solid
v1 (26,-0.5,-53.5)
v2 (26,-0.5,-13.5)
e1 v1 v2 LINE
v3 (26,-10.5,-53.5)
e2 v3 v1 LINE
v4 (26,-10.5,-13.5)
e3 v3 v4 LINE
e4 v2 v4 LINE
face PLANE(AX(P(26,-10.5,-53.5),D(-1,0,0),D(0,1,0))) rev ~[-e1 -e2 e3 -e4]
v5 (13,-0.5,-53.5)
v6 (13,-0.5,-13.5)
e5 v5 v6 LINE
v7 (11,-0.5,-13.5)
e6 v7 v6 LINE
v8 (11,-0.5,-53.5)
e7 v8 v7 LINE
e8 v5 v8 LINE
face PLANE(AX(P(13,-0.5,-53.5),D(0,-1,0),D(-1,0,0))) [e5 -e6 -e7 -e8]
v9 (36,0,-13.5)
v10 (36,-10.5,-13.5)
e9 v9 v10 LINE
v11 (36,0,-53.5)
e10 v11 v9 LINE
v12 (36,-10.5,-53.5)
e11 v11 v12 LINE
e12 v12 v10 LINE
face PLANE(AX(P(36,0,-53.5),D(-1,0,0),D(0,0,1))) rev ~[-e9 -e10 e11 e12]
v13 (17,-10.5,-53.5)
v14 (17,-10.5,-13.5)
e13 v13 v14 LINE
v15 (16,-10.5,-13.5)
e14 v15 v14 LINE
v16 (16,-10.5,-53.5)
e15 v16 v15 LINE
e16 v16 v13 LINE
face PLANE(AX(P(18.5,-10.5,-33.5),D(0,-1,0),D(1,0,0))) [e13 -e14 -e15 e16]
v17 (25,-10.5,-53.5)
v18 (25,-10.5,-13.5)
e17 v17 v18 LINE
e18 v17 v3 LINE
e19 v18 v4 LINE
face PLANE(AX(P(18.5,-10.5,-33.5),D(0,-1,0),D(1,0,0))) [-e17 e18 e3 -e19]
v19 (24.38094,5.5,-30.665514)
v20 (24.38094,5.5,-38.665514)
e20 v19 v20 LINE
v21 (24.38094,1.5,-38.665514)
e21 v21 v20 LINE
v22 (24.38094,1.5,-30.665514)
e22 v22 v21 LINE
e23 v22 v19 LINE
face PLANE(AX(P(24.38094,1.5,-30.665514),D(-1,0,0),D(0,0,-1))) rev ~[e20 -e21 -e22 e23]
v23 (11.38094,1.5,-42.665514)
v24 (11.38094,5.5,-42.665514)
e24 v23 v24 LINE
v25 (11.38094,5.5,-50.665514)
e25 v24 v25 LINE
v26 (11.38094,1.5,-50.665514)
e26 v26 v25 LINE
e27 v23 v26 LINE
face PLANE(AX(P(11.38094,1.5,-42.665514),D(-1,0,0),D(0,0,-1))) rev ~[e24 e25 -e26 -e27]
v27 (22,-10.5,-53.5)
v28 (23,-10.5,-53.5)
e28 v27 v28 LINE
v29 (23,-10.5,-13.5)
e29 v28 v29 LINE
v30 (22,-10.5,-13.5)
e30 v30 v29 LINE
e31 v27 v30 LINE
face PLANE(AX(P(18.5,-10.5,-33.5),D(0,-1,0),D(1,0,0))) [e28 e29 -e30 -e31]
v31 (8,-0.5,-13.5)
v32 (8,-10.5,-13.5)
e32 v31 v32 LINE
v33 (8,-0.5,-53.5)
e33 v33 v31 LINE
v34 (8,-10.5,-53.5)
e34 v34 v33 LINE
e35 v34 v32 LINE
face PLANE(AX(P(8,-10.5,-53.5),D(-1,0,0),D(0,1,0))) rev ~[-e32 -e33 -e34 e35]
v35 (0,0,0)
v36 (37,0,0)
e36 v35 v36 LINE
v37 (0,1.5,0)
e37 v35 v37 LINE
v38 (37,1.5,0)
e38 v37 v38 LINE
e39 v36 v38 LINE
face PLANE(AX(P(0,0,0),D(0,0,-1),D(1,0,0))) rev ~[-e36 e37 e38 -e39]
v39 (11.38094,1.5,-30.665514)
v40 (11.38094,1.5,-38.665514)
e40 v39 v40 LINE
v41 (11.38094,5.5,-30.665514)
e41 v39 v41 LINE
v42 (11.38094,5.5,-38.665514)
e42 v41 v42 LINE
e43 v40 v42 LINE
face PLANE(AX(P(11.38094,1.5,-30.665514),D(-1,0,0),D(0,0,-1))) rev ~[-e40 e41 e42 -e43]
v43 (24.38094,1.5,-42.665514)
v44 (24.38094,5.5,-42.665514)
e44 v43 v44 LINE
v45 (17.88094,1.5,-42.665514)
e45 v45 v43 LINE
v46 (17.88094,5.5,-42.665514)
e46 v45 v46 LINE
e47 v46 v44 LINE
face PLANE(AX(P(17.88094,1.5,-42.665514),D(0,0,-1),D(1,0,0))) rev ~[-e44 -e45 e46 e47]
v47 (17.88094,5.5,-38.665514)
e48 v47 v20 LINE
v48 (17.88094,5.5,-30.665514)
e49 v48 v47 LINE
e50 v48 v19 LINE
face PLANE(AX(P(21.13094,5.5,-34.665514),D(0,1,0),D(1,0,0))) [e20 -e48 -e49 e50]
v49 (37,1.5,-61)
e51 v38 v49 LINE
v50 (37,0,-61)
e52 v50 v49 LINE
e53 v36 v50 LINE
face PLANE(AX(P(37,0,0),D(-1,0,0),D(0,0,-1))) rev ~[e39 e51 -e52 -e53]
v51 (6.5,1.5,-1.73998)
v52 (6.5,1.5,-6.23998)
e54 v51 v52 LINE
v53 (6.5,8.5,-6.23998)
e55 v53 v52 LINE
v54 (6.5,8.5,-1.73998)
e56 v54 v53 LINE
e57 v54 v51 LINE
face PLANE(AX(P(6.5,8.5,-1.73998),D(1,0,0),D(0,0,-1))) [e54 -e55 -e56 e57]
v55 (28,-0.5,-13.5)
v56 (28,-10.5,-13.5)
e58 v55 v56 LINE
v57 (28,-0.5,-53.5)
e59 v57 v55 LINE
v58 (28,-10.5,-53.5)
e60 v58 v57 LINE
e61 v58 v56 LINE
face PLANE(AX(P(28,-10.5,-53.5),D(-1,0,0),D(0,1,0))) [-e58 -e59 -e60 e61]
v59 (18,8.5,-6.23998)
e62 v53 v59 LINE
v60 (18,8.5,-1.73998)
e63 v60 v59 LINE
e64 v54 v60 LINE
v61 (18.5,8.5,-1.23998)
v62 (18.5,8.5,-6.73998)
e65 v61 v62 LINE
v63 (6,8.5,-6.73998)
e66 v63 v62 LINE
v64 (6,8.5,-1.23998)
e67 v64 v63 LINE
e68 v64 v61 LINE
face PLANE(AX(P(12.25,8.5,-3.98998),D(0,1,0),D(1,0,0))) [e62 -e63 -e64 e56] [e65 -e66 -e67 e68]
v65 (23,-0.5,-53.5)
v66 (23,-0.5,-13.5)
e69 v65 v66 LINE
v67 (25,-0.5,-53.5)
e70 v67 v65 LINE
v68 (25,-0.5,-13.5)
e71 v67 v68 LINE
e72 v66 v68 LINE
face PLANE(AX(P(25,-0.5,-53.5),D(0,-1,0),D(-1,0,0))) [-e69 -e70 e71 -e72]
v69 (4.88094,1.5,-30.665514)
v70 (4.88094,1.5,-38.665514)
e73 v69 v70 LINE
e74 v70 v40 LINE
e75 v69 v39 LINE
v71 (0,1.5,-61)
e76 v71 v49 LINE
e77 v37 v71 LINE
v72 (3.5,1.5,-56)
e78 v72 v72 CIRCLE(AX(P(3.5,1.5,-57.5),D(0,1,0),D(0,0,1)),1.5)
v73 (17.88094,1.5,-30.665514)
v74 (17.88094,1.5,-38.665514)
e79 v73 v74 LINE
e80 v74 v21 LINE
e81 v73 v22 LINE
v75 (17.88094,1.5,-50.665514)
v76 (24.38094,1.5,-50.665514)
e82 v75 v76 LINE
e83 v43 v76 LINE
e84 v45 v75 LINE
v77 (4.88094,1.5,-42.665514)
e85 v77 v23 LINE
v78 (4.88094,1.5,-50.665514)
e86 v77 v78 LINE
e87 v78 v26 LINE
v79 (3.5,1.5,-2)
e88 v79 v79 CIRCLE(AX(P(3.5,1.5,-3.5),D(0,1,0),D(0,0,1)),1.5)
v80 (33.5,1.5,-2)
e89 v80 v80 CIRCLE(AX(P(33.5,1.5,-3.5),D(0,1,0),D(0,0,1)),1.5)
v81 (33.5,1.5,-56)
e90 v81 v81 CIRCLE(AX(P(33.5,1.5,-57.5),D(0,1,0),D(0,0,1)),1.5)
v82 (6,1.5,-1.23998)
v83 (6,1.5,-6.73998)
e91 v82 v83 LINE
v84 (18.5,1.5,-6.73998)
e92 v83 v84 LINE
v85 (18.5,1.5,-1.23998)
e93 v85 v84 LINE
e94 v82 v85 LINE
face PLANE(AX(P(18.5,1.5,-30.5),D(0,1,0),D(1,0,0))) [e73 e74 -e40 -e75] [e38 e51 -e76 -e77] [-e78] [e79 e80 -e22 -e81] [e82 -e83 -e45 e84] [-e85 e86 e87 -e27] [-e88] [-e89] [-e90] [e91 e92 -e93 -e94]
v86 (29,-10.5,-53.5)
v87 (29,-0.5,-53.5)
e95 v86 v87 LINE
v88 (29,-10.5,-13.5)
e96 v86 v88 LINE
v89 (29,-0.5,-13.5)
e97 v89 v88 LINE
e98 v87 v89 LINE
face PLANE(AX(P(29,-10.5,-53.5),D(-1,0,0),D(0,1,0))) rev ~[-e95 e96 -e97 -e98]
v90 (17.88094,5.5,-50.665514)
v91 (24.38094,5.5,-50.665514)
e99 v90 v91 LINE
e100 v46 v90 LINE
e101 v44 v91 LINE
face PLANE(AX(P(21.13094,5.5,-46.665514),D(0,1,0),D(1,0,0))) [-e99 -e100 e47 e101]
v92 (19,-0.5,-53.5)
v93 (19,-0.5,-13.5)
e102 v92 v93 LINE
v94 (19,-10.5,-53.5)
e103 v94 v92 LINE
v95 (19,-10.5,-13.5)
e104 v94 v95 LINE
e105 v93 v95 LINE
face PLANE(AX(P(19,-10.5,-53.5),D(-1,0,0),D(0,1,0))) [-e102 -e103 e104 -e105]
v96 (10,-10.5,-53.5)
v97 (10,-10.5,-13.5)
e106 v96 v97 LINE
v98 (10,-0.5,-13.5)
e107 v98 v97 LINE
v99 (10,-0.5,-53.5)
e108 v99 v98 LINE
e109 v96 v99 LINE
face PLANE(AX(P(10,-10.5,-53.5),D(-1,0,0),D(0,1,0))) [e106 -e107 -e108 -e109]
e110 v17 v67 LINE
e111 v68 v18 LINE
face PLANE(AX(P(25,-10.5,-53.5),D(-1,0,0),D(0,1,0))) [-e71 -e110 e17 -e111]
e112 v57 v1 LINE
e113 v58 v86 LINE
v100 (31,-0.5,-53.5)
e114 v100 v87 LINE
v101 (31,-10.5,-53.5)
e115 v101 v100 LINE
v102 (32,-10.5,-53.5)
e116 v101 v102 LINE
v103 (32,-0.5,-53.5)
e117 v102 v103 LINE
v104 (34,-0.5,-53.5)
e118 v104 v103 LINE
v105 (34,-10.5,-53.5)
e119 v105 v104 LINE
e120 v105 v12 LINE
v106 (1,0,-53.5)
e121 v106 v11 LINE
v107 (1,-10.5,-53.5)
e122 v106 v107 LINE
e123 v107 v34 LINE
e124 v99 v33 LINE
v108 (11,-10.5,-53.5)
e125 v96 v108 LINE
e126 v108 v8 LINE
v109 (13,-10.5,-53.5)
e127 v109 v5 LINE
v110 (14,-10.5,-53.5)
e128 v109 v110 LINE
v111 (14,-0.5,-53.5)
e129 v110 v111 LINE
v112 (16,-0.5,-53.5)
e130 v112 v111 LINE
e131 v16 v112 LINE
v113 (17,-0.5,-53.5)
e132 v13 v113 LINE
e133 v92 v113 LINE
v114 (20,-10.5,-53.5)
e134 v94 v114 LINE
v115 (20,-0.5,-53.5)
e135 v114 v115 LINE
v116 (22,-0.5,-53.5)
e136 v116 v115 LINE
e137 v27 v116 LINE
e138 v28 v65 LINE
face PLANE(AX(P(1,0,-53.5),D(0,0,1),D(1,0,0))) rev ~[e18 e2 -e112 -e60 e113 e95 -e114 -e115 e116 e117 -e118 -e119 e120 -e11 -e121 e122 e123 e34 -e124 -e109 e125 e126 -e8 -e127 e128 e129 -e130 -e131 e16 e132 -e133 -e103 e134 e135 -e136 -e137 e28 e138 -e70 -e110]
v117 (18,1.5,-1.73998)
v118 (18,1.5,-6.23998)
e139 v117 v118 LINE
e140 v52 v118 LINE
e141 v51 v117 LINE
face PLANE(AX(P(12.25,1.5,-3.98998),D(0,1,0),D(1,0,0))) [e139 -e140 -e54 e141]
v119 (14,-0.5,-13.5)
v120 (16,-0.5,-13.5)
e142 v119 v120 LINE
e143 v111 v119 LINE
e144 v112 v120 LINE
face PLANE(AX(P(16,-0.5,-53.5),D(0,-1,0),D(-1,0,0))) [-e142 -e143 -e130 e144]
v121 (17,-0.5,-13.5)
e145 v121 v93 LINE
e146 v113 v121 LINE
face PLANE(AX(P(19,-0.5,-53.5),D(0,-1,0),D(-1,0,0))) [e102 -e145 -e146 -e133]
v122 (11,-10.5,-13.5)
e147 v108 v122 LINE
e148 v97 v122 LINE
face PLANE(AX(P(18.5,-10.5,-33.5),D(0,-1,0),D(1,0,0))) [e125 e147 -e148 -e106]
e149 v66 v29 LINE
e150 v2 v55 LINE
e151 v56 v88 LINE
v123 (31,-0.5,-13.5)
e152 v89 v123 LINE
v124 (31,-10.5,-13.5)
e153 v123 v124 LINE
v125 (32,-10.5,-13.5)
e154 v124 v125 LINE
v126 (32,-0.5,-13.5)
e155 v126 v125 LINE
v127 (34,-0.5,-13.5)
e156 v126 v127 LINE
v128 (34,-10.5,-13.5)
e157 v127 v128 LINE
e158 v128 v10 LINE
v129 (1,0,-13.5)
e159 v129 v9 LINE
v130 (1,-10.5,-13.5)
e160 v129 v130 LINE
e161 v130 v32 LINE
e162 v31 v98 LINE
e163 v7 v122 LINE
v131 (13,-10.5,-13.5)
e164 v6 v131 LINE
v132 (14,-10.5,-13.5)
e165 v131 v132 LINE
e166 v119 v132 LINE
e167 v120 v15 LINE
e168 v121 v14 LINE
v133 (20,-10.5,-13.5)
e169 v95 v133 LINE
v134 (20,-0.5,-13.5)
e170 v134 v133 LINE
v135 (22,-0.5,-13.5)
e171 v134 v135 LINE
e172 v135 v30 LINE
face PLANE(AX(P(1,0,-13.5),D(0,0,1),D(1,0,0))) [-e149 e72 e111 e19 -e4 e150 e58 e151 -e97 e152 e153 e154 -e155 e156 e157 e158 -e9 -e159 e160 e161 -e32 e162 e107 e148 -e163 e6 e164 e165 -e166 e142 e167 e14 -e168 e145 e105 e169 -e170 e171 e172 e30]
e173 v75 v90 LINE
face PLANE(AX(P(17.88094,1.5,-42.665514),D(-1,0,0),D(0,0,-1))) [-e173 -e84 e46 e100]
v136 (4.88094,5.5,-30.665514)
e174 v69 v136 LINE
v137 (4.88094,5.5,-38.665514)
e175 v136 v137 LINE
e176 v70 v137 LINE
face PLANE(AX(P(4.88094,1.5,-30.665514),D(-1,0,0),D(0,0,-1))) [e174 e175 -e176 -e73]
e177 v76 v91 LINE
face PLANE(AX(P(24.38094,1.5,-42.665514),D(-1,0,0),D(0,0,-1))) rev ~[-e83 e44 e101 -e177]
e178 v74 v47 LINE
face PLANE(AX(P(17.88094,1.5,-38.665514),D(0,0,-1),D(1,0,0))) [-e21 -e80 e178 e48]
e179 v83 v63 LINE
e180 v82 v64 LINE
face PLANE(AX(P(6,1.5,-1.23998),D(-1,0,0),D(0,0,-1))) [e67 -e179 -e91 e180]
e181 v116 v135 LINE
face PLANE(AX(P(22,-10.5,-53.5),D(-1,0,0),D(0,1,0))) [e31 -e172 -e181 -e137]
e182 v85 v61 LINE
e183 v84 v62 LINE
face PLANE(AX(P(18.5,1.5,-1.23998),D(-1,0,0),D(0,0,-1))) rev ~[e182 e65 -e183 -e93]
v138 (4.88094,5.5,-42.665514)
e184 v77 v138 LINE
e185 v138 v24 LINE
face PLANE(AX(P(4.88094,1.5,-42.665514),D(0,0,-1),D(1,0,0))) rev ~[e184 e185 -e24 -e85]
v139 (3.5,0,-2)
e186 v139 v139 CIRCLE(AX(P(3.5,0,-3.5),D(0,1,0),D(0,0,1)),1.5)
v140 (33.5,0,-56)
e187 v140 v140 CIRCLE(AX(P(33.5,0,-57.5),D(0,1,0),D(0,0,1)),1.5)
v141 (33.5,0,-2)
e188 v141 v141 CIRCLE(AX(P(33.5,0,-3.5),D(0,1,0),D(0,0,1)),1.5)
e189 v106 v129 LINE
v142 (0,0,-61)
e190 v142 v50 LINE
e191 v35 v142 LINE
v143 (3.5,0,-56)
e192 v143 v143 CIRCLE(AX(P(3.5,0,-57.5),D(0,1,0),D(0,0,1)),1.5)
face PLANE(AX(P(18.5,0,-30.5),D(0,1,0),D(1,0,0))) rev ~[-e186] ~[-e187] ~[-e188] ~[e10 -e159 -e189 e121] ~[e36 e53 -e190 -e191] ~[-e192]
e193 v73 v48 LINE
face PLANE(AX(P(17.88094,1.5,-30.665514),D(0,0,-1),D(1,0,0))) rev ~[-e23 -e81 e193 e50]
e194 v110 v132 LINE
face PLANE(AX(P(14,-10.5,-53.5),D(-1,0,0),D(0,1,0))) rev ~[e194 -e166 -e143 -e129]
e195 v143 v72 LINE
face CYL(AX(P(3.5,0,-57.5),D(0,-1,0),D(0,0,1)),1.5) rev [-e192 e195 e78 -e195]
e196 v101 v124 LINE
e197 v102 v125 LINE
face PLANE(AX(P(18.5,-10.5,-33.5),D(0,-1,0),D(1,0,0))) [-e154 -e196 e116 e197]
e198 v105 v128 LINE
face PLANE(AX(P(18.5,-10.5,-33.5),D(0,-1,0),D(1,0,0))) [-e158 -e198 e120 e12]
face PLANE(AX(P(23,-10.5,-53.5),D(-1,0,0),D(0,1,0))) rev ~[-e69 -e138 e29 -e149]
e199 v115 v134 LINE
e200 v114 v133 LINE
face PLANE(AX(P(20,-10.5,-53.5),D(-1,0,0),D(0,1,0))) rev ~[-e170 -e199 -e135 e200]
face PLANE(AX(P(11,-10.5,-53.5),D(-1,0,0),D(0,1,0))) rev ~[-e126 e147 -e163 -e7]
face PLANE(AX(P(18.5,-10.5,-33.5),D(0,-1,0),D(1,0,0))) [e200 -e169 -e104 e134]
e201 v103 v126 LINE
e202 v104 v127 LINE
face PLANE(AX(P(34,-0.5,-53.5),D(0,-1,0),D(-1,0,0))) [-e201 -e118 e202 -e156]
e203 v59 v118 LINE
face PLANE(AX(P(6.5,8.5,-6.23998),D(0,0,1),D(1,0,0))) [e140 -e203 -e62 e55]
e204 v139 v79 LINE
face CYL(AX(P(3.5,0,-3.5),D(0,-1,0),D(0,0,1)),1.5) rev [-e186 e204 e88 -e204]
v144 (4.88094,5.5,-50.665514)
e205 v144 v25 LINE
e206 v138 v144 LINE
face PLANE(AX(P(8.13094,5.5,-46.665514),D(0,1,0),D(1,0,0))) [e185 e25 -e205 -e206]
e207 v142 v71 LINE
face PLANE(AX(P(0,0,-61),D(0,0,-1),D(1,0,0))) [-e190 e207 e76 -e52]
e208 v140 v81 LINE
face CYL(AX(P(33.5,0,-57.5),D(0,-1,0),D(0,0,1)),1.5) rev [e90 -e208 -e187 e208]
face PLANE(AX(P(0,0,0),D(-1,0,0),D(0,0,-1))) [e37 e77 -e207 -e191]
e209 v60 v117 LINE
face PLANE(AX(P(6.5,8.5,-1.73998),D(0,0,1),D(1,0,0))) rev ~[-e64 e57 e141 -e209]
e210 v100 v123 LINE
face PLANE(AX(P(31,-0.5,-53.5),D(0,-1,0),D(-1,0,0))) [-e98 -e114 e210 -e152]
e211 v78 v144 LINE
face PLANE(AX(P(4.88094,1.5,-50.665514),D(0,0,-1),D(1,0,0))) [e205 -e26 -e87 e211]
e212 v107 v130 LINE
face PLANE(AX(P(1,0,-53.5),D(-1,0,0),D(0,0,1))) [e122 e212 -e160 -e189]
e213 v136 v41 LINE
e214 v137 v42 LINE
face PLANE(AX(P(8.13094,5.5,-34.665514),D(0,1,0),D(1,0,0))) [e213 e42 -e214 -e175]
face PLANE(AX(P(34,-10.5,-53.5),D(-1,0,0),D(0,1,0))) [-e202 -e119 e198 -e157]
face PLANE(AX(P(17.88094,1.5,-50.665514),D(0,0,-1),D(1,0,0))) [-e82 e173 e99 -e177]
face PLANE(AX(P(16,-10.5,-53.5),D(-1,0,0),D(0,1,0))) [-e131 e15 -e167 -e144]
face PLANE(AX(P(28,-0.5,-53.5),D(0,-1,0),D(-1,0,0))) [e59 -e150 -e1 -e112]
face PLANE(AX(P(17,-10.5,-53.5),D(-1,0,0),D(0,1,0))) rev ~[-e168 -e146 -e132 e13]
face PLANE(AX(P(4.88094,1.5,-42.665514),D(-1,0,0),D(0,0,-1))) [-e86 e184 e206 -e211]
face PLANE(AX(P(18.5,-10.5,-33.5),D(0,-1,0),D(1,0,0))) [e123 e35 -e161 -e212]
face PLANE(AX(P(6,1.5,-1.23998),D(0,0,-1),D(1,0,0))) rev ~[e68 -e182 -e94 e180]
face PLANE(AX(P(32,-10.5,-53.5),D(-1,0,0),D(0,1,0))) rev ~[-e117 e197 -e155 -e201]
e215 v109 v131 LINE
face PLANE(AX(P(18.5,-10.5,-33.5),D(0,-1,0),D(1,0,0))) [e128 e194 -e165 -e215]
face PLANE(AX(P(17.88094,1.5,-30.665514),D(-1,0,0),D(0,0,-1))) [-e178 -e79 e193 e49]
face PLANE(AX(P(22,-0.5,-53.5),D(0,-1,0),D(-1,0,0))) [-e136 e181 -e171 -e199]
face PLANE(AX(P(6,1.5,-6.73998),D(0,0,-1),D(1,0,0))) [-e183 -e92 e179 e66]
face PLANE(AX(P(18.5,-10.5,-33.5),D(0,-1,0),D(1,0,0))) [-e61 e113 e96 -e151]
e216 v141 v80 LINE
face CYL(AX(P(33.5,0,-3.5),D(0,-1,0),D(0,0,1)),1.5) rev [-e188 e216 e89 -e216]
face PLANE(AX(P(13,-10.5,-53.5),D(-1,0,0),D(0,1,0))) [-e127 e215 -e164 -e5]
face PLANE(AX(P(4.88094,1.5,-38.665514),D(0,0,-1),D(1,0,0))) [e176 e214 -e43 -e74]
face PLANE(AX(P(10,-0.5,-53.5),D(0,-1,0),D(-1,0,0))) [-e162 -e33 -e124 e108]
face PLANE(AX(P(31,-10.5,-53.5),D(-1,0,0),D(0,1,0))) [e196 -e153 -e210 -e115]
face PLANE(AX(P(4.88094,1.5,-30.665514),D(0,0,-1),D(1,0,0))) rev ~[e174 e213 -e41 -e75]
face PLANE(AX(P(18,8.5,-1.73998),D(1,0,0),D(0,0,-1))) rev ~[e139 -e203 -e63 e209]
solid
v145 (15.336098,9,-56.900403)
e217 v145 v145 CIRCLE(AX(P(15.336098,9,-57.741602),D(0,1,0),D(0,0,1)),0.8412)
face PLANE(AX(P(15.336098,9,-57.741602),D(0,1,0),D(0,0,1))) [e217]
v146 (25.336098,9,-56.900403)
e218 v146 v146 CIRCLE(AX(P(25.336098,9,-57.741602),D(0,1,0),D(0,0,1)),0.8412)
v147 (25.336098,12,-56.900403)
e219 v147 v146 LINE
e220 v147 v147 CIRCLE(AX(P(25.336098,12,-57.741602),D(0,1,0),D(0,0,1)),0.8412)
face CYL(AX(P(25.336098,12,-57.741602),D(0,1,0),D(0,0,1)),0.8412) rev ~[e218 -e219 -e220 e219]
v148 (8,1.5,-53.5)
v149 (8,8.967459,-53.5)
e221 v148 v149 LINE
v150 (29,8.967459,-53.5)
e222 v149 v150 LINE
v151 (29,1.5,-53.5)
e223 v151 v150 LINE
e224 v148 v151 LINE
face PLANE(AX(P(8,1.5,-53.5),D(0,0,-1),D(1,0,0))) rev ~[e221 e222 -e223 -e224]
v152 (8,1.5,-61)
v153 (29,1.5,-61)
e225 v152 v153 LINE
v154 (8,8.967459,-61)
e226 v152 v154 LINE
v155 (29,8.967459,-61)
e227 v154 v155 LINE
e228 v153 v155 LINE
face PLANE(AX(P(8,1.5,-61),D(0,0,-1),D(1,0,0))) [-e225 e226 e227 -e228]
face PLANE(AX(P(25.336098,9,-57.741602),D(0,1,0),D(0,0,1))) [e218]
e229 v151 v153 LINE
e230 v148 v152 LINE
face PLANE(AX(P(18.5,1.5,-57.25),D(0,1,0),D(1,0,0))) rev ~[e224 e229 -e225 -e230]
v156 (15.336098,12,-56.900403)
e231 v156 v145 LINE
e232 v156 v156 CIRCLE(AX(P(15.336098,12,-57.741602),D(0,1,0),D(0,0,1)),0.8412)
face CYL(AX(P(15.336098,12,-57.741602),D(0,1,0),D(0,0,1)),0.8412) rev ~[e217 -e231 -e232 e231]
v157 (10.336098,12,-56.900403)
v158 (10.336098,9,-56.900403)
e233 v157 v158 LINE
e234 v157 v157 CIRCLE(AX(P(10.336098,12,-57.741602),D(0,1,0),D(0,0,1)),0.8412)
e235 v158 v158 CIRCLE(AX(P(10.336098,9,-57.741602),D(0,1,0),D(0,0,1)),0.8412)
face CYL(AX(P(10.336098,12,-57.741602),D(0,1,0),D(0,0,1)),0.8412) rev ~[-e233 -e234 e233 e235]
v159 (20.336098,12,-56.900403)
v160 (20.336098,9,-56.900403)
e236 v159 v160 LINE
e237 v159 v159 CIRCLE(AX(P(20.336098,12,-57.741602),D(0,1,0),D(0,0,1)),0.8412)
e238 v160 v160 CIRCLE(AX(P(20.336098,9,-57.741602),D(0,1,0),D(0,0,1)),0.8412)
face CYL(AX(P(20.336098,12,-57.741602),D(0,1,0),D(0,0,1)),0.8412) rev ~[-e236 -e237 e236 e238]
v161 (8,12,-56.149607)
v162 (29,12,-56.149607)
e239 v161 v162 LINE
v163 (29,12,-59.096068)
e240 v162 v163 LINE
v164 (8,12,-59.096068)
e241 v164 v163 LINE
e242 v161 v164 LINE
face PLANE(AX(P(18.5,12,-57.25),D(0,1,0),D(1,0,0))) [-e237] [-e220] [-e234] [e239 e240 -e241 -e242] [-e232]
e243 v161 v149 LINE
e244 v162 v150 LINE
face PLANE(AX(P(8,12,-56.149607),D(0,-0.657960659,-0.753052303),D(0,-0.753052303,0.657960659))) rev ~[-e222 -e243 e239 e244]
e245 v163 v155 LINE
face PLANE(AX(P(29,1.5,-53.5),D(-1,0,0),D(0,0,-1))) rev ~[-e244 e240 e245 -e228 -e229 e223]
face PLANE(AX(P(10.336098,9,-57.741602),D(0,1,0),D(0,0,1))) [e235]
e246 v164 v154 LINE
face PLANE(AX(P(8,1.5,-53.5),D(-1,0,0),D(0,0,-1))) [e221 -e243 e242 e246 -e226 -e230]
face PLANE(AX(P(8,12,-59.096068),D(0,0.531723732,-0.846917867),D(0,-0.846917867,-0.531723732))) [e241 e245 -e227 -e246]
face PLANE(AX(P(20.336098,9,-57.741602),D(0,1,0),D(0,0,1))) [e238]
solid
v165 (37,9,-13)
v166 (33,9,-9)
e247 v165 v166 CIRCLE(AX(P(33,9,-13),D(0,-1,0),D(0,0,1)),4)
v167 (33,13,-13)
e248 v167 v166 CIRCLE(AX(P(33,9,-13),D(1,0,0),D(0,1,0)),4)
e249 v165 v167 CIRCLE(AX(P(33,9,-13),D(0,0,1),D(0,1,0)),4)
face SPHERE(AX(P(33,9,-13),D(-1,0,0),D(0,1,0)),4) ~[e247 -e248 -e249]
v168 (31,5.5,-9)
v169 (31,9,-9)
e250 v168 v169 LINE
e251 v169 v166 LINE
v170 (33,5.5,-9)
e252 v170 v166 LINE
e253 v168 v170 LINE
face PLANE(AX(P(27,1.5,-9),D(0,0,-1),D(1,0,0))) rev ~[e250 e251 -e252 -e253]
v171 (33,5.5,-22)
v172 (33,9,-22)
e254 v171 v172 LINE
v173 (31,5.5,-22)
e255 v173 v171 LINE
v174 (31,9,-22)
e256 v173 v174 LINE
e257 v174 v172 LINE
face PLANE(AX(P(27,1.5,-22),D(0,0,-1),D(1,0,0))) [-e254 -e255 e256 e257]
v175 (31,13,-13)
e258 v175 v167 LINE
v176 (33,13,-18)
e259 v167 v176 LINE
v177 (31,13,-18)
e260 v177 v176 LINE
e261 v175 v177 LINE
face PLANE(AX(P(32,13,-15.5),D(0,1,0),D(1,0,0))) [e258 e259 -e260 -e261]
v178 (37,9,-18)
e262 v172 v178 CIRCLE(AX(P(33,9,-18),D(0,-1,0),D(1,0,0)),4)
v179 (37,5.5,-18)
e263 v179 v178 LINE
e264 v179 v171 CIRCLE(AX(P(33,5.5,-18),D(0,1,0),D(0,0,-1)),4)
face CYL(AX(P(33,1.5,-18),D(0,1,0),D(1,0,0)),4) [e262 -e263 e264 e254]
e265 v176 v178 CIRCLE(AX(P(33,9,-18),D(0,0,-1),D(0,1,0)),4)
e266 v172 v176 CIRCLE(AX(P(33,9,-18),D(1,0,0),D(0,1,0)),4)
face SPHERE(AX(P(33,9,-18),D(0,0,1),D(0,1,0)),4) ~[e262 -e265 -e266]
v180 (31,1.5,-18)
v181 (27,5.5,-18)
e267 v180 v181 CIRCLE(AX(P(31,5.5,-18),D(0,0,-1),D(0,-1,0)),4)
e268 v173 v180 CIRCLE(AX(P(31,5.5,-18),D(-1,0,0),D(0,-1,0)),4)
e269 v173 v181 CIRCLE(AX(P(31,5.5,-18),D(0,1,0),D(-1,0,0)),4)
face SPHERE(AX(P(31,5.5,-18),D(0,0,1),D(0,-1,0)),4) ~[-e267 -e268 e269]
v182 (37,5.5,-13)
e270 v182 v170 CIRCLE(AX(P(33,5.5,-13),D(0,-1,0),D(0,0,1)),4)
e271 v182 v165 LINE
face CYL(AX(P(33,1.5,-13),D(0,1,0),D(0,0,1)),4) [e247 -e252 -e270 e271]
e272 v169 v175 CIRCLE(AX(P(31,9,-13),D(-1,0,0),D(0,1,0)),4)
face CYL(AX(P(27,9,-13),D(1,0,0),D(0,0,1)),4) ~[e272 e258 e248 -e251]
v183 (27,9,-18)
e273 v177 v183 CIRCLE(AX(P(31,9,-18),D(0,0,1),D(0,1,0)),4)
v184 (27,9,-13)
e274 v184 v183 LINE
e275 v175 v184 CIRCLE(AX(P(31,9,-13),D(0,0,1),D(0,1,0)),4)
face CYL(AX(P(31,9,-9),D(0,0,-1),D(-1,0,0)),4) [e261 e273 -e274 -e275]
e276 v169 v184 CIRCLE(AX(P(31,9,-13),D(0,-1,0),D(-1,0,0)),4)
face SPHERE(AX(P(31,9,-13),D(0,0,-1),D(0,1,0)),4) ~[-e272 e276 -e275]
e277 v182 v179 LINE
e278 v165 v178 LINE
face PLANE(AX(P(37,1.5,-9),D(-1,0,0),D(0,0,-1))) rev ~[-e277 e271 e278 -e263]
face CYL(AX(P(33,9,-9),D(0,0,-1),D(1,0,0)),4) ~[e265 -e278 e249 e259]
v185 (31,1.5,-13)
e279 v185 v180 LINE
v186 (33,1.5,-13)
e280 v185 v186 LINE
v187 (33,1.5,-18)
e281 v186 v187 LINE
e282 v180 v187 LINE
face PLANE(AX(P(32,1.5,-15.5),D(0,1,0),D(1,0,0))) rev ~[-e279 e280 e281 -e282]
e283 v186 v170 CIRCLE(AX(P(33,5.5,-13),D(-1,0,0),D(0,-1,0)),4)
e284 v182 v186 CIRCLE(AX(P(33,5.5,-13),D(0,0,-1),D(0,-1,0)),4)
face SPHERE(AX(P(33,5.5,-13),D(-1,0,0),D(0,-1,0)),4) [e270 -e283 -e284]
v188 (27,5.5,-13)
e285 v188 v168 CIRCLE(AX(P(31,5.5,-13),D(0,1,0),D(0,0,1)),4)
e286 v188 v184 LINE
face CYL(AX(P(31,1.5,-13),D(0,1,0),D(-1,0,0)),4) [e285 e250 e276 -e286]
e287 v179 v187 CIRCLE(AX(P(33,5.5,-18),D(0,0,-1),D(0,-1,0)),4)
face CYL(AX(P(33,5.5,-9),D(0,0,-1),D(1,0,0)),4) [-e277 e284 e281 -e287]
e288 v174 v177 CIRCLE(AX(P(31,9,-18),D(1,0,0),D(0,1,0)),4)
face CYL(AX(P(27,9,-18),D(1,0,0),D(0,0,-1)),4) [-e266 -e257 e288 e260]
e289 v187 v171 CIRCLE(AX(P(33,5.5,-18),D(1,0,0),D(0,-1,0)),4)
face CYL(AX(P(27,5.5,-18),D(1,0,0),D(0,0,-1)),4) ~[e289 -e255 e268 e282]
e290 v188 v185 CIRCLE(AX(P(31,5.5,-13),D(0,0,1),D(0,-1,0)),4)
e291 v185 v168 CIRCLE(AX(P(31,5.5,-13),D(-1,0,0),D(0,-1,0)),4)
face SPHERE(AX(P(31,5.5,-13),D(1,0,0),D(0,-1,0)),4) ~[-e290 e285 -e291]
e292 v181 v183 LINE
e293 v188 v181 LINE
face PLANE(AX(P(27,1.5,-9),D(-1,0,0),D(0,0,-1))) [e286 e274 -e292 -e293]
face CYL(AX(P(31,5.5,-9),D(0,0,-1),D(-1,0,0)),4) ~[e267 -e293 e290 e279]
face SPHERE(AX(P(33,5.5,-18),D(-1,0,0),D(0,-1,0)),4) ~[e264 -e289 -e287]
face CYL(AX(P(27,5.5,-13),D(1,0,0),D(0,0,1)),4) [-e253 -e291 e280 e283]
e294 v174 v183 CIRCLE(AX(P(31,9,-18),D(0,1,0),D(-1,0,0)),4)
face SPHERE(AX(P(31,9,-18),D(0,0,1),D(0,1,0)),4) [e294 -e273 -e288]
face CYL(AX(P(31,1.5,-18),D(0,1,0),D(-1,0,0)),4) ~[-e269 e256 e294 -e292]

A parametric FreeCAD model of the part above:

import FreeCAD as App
import Part
import Sketcher

V = App.Vector

doc = App.newDocument("Part")
params = doc.addObject("Spreadsheet::Sheet", "Params")
for row, (alias, value) in enumerate([
    ("sketch1_diameter", "3 mm"),
    ("sketch1_width", "37 mm"),
    ("sketch1_height", "61 mm"),
    ("pad1_length", "1.5 mm"),
    ("sketch2_width", "35 mm"),
    ("sketch2_height", "40 mm"),
    ("pad2_length", "10.5 mm"),
    ("sketch3_width", "12.5 mm"),
    ("sketch3_height", "5.5 mm"),
    ("pad3_length", "7 mm"),
    ("sketch4_width", "11.5 mm"),
    ("sketch4_height", "4.5 mm"),
    ("pocket1_length", "7 mm"),
    ("sketch5_height", "8 mm"),
    ("sketch5_width", "6.5 mm"),
    ("pad4_length", "4 mm"),
    ("sketch6_width", "2 mm"),
    ("sketch6_height", "10 mm"),
    ("sketch7_width", "21 mm"),
    ("sketch7_height", "7.5 mm"),
    ("pad5_length", "10.5 mm"),
    ("pocket3_length", "21 mm"),
    ("pocket4_length", "3 mm"),
    ("sketch10_width", "10 mm"),
    ("sketch10_height", "13 mm"),
    ("pad6_length", "11.5 mm"),
    ("fillet_radius", "4 mm"),
], start=1):
    params.set(f"A{row}", alias)
    params.set(f"B{row}", "=" + value)
    params.setAlias(f"B{row}", alias)

body = doc.addObject("PartDesign::Body", "Body")

sketch1 = doc.addObject("Sketcher::SketchObject", "Sketch")
body.addObject(sketch1)
sketch1.AttachmentSupport = (doc.XZ_Plane, [""])
sketch1.MapMode = "FlatFace"
sketch1.addGeometry([
    Part.LineSegment(V(0, -61, 0), V(0, 0, 0)),
    Part.LineSegment(V(0, 0, 0), V(37, 0, 0)),
    Part.LineSegment(V(37, 0, 0), V(37, -61, 0)),
    Part.LineSegment(V(37, -61, 0), V(0, -61, 0)),
    Part.Circle(V(3.5, -3.5, 0), V(0, 0, 1), 1.5),
    Part.Circle(V(33.5, -3.5, 0), V(0, 0, 1), 1.5),
    Part.Circle(V(3.5, -57.5, 0), V(0, 0, 1), 1.5),
    Part.Circle(V(33.5, -57.5, 0), V(0, 0, 1), 1.5),
], False)
sketch1.addConstraint([
    Sketcher.Constraint("Coincident", 0, 2, 1, 1),
    Sketcher.Constraint("Coincident", 1, 2, 2, 1),
    Sketcher.Constraint("Coincident", 2, 2, 3, 1),
    Sketcher.Constraint("Coincident", 3, 2, 0, 1),
    Sketcher.Constraint("Vertical", 0),
    Sketcher.Constraint("Horizontal", 1),
    Sketcher.Constraint("Vertical", 2),
    Sketcher.Constraint("Horizontal", 3),
    Sketcher.Constraint("Coincident", 0, 2, -1, 1),
    Sketcher.Constraint("Equal", 4, 5),
    Sketcher.Constraint("Equal", 5, 6),
    Sketcher.Constraint("Equal", 6, 7),
    Sketcher.Constraint("Horizontal", 4, 3, 5, 3),
    Sketcher.Constraint("Horizontal", 6, 3, 7, 3),
    Sketcher.Constraint("Vertical", 4, 3, 6, 3),
    Sketcher.Constraint("Vertical", 5, 3, 7, 3),
    Sketcher.Constraint("Diameter", 4, 3.0),
    Sketcher.Constraint("DistanceX", 1, 1, 1, 2, 37.0),
    Sketcher.Constraint("DistanceY", 0, 1, 0, 2, 61.0),
    Sketcher.Constraint("DistanceX", 4, 3, 5, 3, 30.0),
    Sketcher.Constraint("DistanceY", 6, 3, 4, 3, 54.0),
    Sketcher.Constraint("DistanceX", -1, 1, 4, 3, 3.5),
    Sketcher.Constraint("DistanceY", 4, 3, -1, 1, 3.5),
])
sketch1.setExpression("Constraints[16]", "Params.sketch1_diameter")
sketch1.setExpression("Constraints[17]", "Params.sketch1_width")
sketch1.setExpression("Constraints[18]", "Params.sketch1_height")
pad1 = doc.addObject("PartDesign::Pad", "Pad")
body.addObject(pad1)
pad1.Profile = sketch1
pad1.setExpression("Length", "Params.pad1_length")
pad1.Reversed = True

sketch2 = doc.addObject("Sketcher::SketchObject", "Sketch001")
body.addObject(sketch2)
sketch2.AttachmentSupport = (doc.XZ_Plane, [""])
sketch2.MapMode = "FlatFace"
sketch2.addGeometry([
    Part.LineSegment(V(1, -13.5, 0), V(1, -53.5, 0)),
    Part.LineSegment(V(1, -53.5, 0), V(36, -53.5, 0)),
    Part.LineSegment(V(36, -53.5, 0), V(36, -13.5, 0)),
    Part.LineSegment(V(36, -13.5, 0), V(1, -13.5, 0)),
], False)
sketch2.addConstraint([
    Sketcher.Constraint("Coincident", 0, 2, 1, 1),
    Sketcher.Constraint("Coincident", 1, 2, 2, 1),
    Sketcher.Constraint("Coincident", 2, 2, 3, 1),
    Sketcher.Constraint("Coincident", 3, 2, 0, 1),
    Sketcher.Constraint("Vertical", 0),
    Sketcher.Constraint("Horizontal", 1),
    Sketcher.Constraint("Vertical", 2),
    Sketcher.Constraint("Horizontal", 3),
    Sketcher.Constraint("DistanceX", 1, 1, 1, 2, 35.0),
    Sketcher.Constraint("DistanceY", 0, 2, 0, 1, 40.0),
    Sketcher.Constraint("DistanceX", -1, 1, 0, 2, 1.0),
    Sketcher.Constraint("DistanceY", 0, 2, -1, 1, 53.5),
])
sketch2.setExpression("Constraints[8]", "Params.sketch2_width")
sketch2.setExpression("Constraints[9]", "Params.sketch2_height")
pad2 = doc.addObject("PartDesign::Pad", "Pad001")
body.addObject(pad2)
pad2.Profile = sketch2
pad2.setExpression("Length", "Params.pad2_length")

sketch3 = doc.addObject("Sketcher::SketchObject", "Sketch002")
body.addObject(sketch3)
sketch3.AttachmentSupport = (doc.XZ_Plane, [""])
sketch3.MapMode = "FlatFace"
sketch3.AttachmentOffset = App.Placement(V(0, 0, -1.5), App.Rotation())
sketch3.addGeometry([
    Part.LineSegment(V(6, -6.73998, 0), V(6, -1.23998, 0)),
    Part.LineSegment(V(6, -1.23998, 0), V(18.5, -1.23998, 0)),
    Part.LineSegment(V(18.5, -1.23998, 0), V(18.5, -6.73998, 0)),
    Part.LineSegment(V(18.5, -6.73998, 0), V(6, -6.73998, 0)),
], False)
sketch3.addConstraint([
    Sketcher.Constraint("Coincident", 0, 2, 1, 1),
    Sketcher.Constraint("Coincident", 1, 2, 2, 1),
    Sketcher.Constraint("Coincident", 2, 2, 3, 1),
    Sketcher.Constraint("Coincident", 3, 2, 0, 1),
    Sketcher.Constraint("Vertical", 0),
    Sketcher.Constraint("Horizontal", 1),
    Sketcher.Constraint("Vertical", 2),
    Sketcher.Constraint("Horizontal", 3),
    Sketcher.Constraint("DistanceX", 1, 1, 1, 2, 12.5),
    Sketcher.Constraint("DistanceY", 0, 1, 0, 2, 5.5),
    Sketcher.Constraint("DistanceX", -1, 1, 0, 2, 6.0),
    Sketcher.Constraint("DistanceY", 0, 2, -1, 1, 1.23998),
])
sketch3.setExpression("Constraints[8]", "Params.sketch3_width")
sketch3.setExpression("Constraints[9]", "Params.sketch3_height")
pad3 = doc.addObject("PartDesign::Pad", "Pad002")
body.addObject(pad3)
pad3.Profile = sketch3
pad3.setExpression("Length", "Params.pad3_length")
pad3.Reversed = True

sketch4 = doc.addObject("Sketcher::SketchObject", "Sketch003")
body.addObject(sketch4)
sketch4.AttachmentSupport = (doc.XZ_Plane, [""])
sketch4.MapMode = "FlatFace"
sketch4.AttachmentOffset = App.Placement(V(0, 0, -8.5), App.Rotation())
sketch4.addGeometry([
    Part.LineSegment(V(6.5, -6.23998, 0), V(6.5, -1.73998, 0)),
    Part.LineSegment(V(6.5, -1.73998, 0), V(18, -1.73998, 0)),
    Part.LineSegment(V(18, -1.73998, 0), V(18, -6.23998, 0)),
    Part.LineSegment(V(18, -6.23998, 0), V(6.5, -6.23998, 0)),
], False)
sketch4.addConstraint([
    Sketcher.Constraint("Coincident", 0, 2, 1, 1),
    Sketcher.Constraint("Coincident", 1, 2, 2, 1),
    Sketcher.Constraint("Coincident", 2, 2, 3, 1),
    Sketcher.Constraint("Coincident", 3, 2, 0, 1),
    Sketcher.Constraint("Vertical", 0),
    Sketcher.Constraint("Horizontal", 1),
    Sketcher.Constraint("Vertical", 2),
    Sketcher.Constraint("Horizontal", 3),
    Sketcher.Constraint("DistanceX", 1, 1, 1, 2, 11.5),
    Sketcher.Constraint("DistanceY", 0, 1, 0, 2, 4.5),
    Sketcher.Constraint("DistanceX", -1, 1, 1, 2, 18.0),
    Sketcher.Constraint("DistanceY", 0, 2, -1, 1, 1.73998),
])
sketch4.setExpression("Constraints[8]", "Params.sketch4_width")
sketch4.setExpression("Constraints[9]", "Params.sketch4_height")
pocket1 = doc.addObject("PartDesign::Pocket", "Pocket")
body.addObject(pocket1)
pocket1.Profile = sketch4
pocket1.setExpression("Length", "Params.pocket1_length")
pocket1.Reversed = True

sketch5 = doc.addObject("Sketcher::SketchObject", "Sketch004")
body.addObject(sketch5)
sketch5.AttachmentSupport = (doc.XZ_Plane, [""])
sketch5.MapMode = "FlatFace"
sketch5.AttachmentOffset = App.Placement(V(0, 0, -1.5), App.Rotation())
sketch5.addGeometry([
    Part.LineSegment(V(4.88094, -50.665514, 0), V(4.88094, -42.665514, 0)),
    Part.LineSegment(V(4.88094, -42.665514, 0), V(11.38094, -42.665514, 0)),
    Part.LineSegment(V(11.38094, -42.665514, 0), V(11.38094, -50.665514, 0)),
    Part.LineSegment(V(11.38094, -50.665514, 0), V(4.88094, -50.665514, 0)),
    Part.LineSegment(V(4.88094, -38.665514, 0), V(4.88094, -30.665514, 0)),
    Part.LineSegment(V(4.88094, -30.665514, 0), V(11.38094, -30.665514, 0)),
    Part.LineSegment(V(11.38094, -30.665514, 0), V(11.38094, -38.665514, 0)),
    Part.LineSegment(V(11.38094, -38.665514, 0), V(4.88094, -38.665514, 0)),
    Part.LineSegment(V(17.88094, -38.665514, 0), V(17.88094, -30.665514, 0)),
    Part.LineSegment(V(17.88094, -30.665514, 0), V(24.38094, -30.665514, 0)),
    Part.LineSegment(V(24.38094, -30.665514, 0), V(24.38094, -38.665514, 0)),
    Part.LineSegment(V(24.38094, -38.665514, 0), V(17.88094, -38.665514, 0)),
    Part.LineSegment(V(17.88094, -50.665514, 0), V(17.88094, -42.665514, 0)),
    Part.LineSegment(V(17.88094, -42.665514, 0), V(24.38094, -42.665514, 0)),
    Part.LineSegment(V(24.38094, -42.665514, 0), V(24.38094, -50.665514, 0)),
    Part.LineSegment(V(24.38094, -50.665514, 0), V(17.88094, -50.665514, 0)),
], False)
sketch5.addConstraint([
    Sketcher.Constraint("Coincident", 0, 2, 1, 1),
    Sketcher.Constraint("Coincident", 1, 2, 2, 1),
    Sketcher.Constraint("Coincident", 2, 2, 3, 1),
    Sketcher.Constraint("Coincident", 3, 2, 0, 1),
    Sketcher.Constraint("Coincident", 4, 2, 5, 1),
    Sketcher.Constraint("Coincident", 5, 2, 6, 1),
    Sketcher.Constraint("Coincident", 6, 2, 7, 1),
    Sketcher.Constraint("Coincident", 7, 2, 4, 1),
    Sketcher.Constraint("Coincident", 8, 2, 9, 1),
    Sketcher.Constraint("Coincident", 9, 2, 10, 1),
    Sketcher.Constraint("Coincident", 10, 2, 11, 1),
    Sketcher.Constraint("Coincident", 11, 2, 8, 1),
    Sketcher.Constraint("Coincident", 12, 2, 13, 1),
    Sketcher.Constraint("Coincident", 13, 2, 14, 1),
    Sketcher.Constraint("Coincident", 14, 2, 15, 1),
    Sketcher.Constraint("Coincident", 15, 2, 12, 1),
    Sketcher.Constraint("Vertical", 0),
    Sketcher.Constraint("Horizontal", 1),
    Sketcher.Constraint("Vertical", 2),
    Sketcher.Constraint("Horizontal", 3),
    Sketcher.Constraint("Vertical", 4),
    Sketcher.Constraint("Horizontal", 5),
    Sketcher.Constraint("Vertical", 6),
    Sketcher.Constraint("Horizontal", 7),
    Sketcher.Constraint("Vertical", 8),
    Sketcher.Constraint("Horizontal", 9),
    Sketcher.Constraint("Vertical", 10),
    Sketcher.Constraint("Horizontal", 11),
    Sketcher.Constraint("Vertical", 12),
    Sketcher.Constraint("Horizontal", 13),
    Sketcher.Constraint("Vertical", 14),
    Sketcher.Constraint("Horizontal", 15),
    Sketcher.Constraint("Horizontal", 5, 2, 8, 2),
    Sketcher.Constraint("Horizontal", 7, 2, 10, 2),
    Sketcher.Constraint("Horizontal", 1, 2, 12, 2),
    Sketcher.Constraint("Horizontal", 3, 2, 14, 2),
    Sketcher.Constraint("Vertical", 3, 2, 4, 2),
    Sketcher.Constraint("Vertical", 2, 2, 5, 2),
    Sketcher.Constraint("Vertical", 11, 2, 12, 2),
    Sketcher.Constraint("Vertical", 10, 2, 13, 2),
    Sketcher.Constraint("Equal", 7, 9),
    Sketcher.Constraint("Equal", 2, 4),
    Sketcher.Constraint("DistanceY", 0, 1, 0, 2, 8.0),
    Sketcher.Constraint("DistanceX", 1, 1, 1, 2, 6.5),
    Sketcher.Constraint("DistanceY", 0, 2, 4, 2, 12.0),
    Sketcher.Constraint("DistanceX", 4, 2, 8, 2, 13.0),
    Sketcher.Constraint("DistanceX", -1, 1, 0, 2, 4.88094),
    Sketcher.Constraint("DistanceY", 0, 2, -1, 1, 42.665514),
])
sketch5.setExpression("Constraints[42]", "Params.sketch5_height")
sketch5.setExpression("Constraints[43]", "Params.sketch5_width")
pad4 = doc.addObject("PartDesign::Pad", "Pad003")
body.addObject(pad4)
pad4.Profile = sketch5
pad4.setExpression("Length", "Params.pad4_length")
pad4.Reversed = True

sketch6 = doc.addObject("Sketcher::SketchObject", "Sketch005")
body.addObject(sketch6)
sketch6.AttachmentSupport = (doc.XY_Plane, [""])
sketch6.MapMode = "FlatFace"
sketch6.AttachmentOffset = App.Placement(V(0, 0, -53.5), App.Rotation())
sketch6.addGeometry([
    Part.LineSegment(V(34, -0.5, 0), V(34, -10.5, 0)),
    Part.LineSegment(V(34, -10.5, 0), V(32, -10.5, 0)),
    Part.LineSegment(V(32, -10.5, 0), V(32, -0.5, 0)),
    Part.LineSegment(V(32, -0.5, 0), V(34, -0.5, 0)),
    Part.LineSegment(V(31, -0.5, 0), V(31, -10.5, 0)),
    Part.LineSegment(V(31, -10.5, 0), V(29, -10.5, 0)),
    Part.LineSegment(V(29, -10.5, 0), V(29, -0.5, 0)),
    Part.LineSegment(V(29, -0.5, 0), V(31, -0.5, 0)),
    Part.LineSegment(V(28, -0.5, 0), V(28, -10.5, 0)),
    Part.LineSegment(V(28, -10.5, 0), V(26, -10.5, 0)),
    Part.LineSegment(V(26, -10.5, 0), V(26, -0.5, 0)),
    Part.LineSegment(V(26, -0.5, 0), V(28, -0.5, 0)),
    Part.LineSegment(V(25, -0.5, 0), V(25, -10.5, 0)),
    Part.LineSegment(V(25, -10.5, 0), V(23, -10.5, 0)),
    Part.LineSegment(V(23, -10.5, 0), V(23, -0.5, 0)),
    Part.LineSegment(V(23, -0.5, 0), V(25, -0.5, 0)),
    Part.LineSegment(V(22, -0.5, 0), V(22, -10.5, 0)),
    Part.LineSegment(V(22, -10.5, 0), V(20, -10.5, 0)),
    Part.LineSegment(V(20, -10.5, 0), V(20, -0.5, 0)),
    Part.LineSegment(V(20, -0.5, 0), V(22, -0.5, 0)),
    Part.LineSegment(V(19, -0.5, 0), V(19, -10.5, 0)),
    Part.LineSegment(V(19, -10.5, 0), V(17, -10.5, 0)),
    Part.LineSegment(V(17, -10.5, 0), V(17, -0.5, 0)),
    Part.LineSegment(V(17, -0.5, 0), V(19, -0.5, 0)),
    Part.LineSegment(V(16, -0.5, 0), V(16, -10.5, 0)),
    Part.LineSegment(V(16, -10.5, 0), V(14, -10.5, 0)),
    Part.LineSegment(V(14, -10.5, 0), V(14, -0.5, 0)),
    Part.LineSegment(V(14, -0.5, 0), V(16, -0.5, 0)),
    Part.LineSegment(V(13, -0.5, 0), V(13, -10.5, 0)),
    Part.LineSegment(V(13, -10.5, 0), V(11, -10.5, 0)),
    Part.LineSegment(V(11, -10.5, 0), V(11, -0.5, 0)),
    Part.LineSegment(V(11, -0.5, 0), V(13, -0.5, 0)),
    Part.LineSegment(V(10, -0.5, 0), V(10, -10.5, 0)),
    Part.LineSegment(V(10, -10.5, 0), V(8, -10.5, 0)),
    Part.LineSegment(V(8, -10.5, 0), V(8, -0.5, 0)),
    Part.LineSegment(V(8, -0.5, 0), V(10, -0.5, 0)),
], False)
sketch6.addConstraint([
    Sketcher.Constraint("Coincident", 0, 2, 1, 1),
    Sketcher.Constraint("Coincident", 1, 2, 2, 1),
    Sketcher.Constraint("Coincident", 2, 2, 3, 1),
    Sketcher.Constraint("Coincident", 3, 2, 0, 1),
    Sketcher.Constraint("Coincident", 4, 2, 5, 1),
    Sketcher.Constraint("Coincident", 5, 2, 6, 1),
    Sketcher.Constraint("Coincident", 6, 2, 7, 1),
    Sketcher.Constraint("Coincident", 7, 2, 4, 1),
    Sketcher.Constraint("Coincident", 8, 2, 9, 1),
    Sketcher.Constraint("Coincident", 9, 2, 10, 1),
    Sketcher.Constraint("Coincident", 10, 2, 11, 1),
    Sketcher.Constraint("Coincident", 11, 2, 8, 1),
    Sketcher.Constraint("Coincident", 12, 2, 13, 1),
    Sketcher.Constraint("Coincident", 13, 2, 14, 1),
    Sketcher.Constraint("Coincident", 14, 2, 15, 1),
    Sketcher.Constraint("Coincident", 15, 2, 12, 1),
    Sketcher.Constraint("Coincident", 16, 2, 17, 1),
    Sketcher.Constraint("Coincident", 17, 2, 18, 1),
    Sketcher.Constraint("Coincident", 18, 2, 19, 1),
    Sketcher.Constraint("Coincident", 19, 2, 16, 1),
    Sketcher.Constraint("Coincident", 20, 2, 21, 1),
    Sketcher.Constraint("Coincident", 21, 2, 22, 1),
    Sketcher.Constraint("Coincident", 22, 2, 23, 1),
    Sketcher.Constraint("Coincident", 23, 2, 20, 1),
    Sketcher.Constraint("Coincident", 24, 2, 25, 1),
    Sketcher.Constraint("Coincident", 25, 2, 26, 1),
    Sketcher.Constraint("Coincident", 26, 2, 27, 1),
    Sketcher.Constraint("Coincident", 27, 2, 24, 1),
    Sketcher.Constraint("Coincident", 28, 2, 29, 1),
    Sketcher.Constraint("Coincident", 29, 2, 30, 1),
    Sketcher.Constraint("Coincident", 30, 2, 31, 1),
    Sketcher.Constraint("Coincident", 31, 2, 28, 1),
    Sketcher.Constraint("Coincident", 32, 2, 33, 1),
    Sketcher.Constraint("Coincident", 33, 2, 34, 1),
    Sketcher.Constraint("Coincident", 34, 2, 35, 1),
    Sketcher.Constraint("Coincident", 35, 2, 32, 1),
    Sketcher.Constraint("Vertical", 0),
    Sketcher.Constraint("Horizontal", 1),
    Sketcher.Constraint("Vertical", 2),
    Sketcher.Constraint("Horizontal", 3),
    Sketcher.Constraint("Vertical", 4),
    Sketcher.Constraint("Horizontal", 5),
    Sketcher.Constraint("Vertical", 6),
    Sketcher.Constraint("Horizontal", 7),
    Sketcher.Constraint("Vertical", 8),
    Sketcher.Constraint("Horizontal", 9),
    Sketcher.Constraint("Vertical", 10),
    Sketcher.Constraint("Horizontal", 11),
    Sketcher.Constraint("Vertical", 12),
    Sketcher.Constraint("Horizontal", 13),
    Sketcher.Constraint("Vertical", 14),
    Sketcher.Constraint("Horizontal", 15),
    Sketcher.Constraint("Vertical", 16),
    Sketcher.Constraint("Horizontal", 17),
    Sketcher.Constraint("Vertical", 18),
    Sketcher.Constraint("Horizontal", 19),
    Sketcher.Constraint("Vertical", 20),
    Sketcher.Constraint("Horizontal", 21),
    Sketcher.Constraint("Vertical", 22),
    Sketcher.Constraint("Horizontal", 23),
    Sketcher.Constraint("Vertical", 24),
    Sketcher.Constraint("Horizontal", 25),
    Sketcher.Constraint("Vertical", 26),
    Sketcher.Constraint("Horizontal", 27),
    Sketcher.Constraint("Vertical", 28),
    Sketcher.Constraint("Horizontal", 29),
    Sketcher.Constraint("Vertical", 30),
    Sketcher.Constraint("Horizontal", 31),
    Sketcher.Constraint("Vertical", 32),
    Sketcher.Constraint("Horizontal", 33),
    Sketcher.Constraint("Vertical", 34),
    Sketcher.Constraint("Horizontal", 35),
    Sketcher.Constraint("Horizontal", 1, 2, 4, 2),
    Sketcher.Constraint("Horizontal", 3, 2, 6, 2),
    Sketcher.Constraint("Horizontal", 5, 2, 8, 2),
    Sketcher.Constraint("Horizontal", 7, 2, 10, 2),
    Sketcher.Constraint("Horizontal", 9, 2, 12, 2),
    Sketcher.Constraint("Horizontal", 11, 2, 14, 2),
    Sketcher.Constraint("Horizontal", 13, 2, 16, 2),
    Sketcher.Constraint("Horizontal", 15, 2, 18, 2),
    Sketcher.Constraint("Horizontal", 17, 2, 20, 2),
    Sketcher.Constraint("Horizontal", 19, 2, 22, 2),
    Sketcher.Constraint("Horizontal", 21, 2, 24, 2),
    Sketcher.Constraint("Horizontal", 23, 2, 26, 2),
    Sketcher.Constraint("Horizontal", 25, 2, 28, 2),
    Sketcher.Constraint("Horizontal", 27, 2, 30, 2),
    Sketcher.Constraint("Horizontal", 29, 2, 32, 2),
    Sketcher.Constraint("Horizontal", 31, 2, 34, 2),
    Sketcher.Constraint("Equal", 3, 5),
    Sketcher.Constraint("Equal", 7, 9),
    Sketcher.Constraint("Equal", 11, 13),
    Sketcher.Constraint("Equal", 15, 17),
    Sketcher.Constraint("Equal", 19, 21),
    Sketcher.Constraint("Equal", 23, 25),
    Sketcher.Constraint("Equal", 27, 29),
    Sketcher.Constraint("Equal", 31, 33),
    Sketcher.Constraint("DistanceX", 1, 2, 1, 1, 2.0),
    Sketcher.Constraint("DistanceY", 0, 2, 0, 1, 10.0),
    Sketcher.Constraint("DistanceX", -1, 1, 0, 2, 34.0),
    Sketcher.Constraint("DistanceX", -1, 1, 4, 2, 31.0),
    Sketcher.Constraint("DistanceX", -1, 1, 8, 2, 28.0),
    Sketcher.Constraint("DistanceX", -1, 1, 12, 2, 25.0),
    Sketcher.Constraint("DistanceX", -1, 1, 16, 2, 22.0),
    Sketcher.Constraint("DistanceX", -1, 1, 20, 2, 19.0),
    Sketcher.Constraint("DistanceX", -1, 1, 24, 2, 16.0),
    Sketcher.Constraint("DistanceX", -1, 1, 28, 2, 13.0),
    Sketcher.Constraint("DistanceX", -1, 1, 32, 2, 10.0),
    Sketcher.Constraint("DistanceY", 0, 2, -1, 1, 10.5),
])
sketch6.setExpression("Constraints[96]", "Params.sketch6_width")
sketch6.setExpression("Constraints[97]", "Params.sketch6_height")
pocket2 = doc.addObject("PartDesign::Pocket", "Pocket001")
body.addObject(pocket2)
pocket2.Profile = sketch6
pocket2.Type = "ThroughAll"
pocket2.Reversed = True
body2 = doc.addObject("PartDesign::Body", "Body001")

sketch7 = doc.addObject("Sketcher::SketchObject", "Sketch006")
body2.addObject(sketch7)
sketch7.AttachmentSupport = (doc.getObject("XZ_Plane001"), [""])
sketch7.MapMode = "FlatFace"
sketch7.AttachmentOffset = App.Placement(V(0, 0, -1.5), App.Rotation())
sketch7.addGeometry([
    Part.LineSegment(V(8, -61, 0), V(8, -53.5, 0)),
    Part.LineSegment(V(8, -53.5, 0), V(29, -53.5, 0)),
    Part.LineSegment(V(29, -53.5, 0), V(29, -61, 0)),
    Part.LineSegment(V(29, -61, 0), V(8, -61, 0)),
], False)
sketch7.addConstraint([
    Sketcher.Constraint("Coincident", 0, 2, 1, 1),
    Sketcher.Constraint("Coincident", 1, 2, 2, 1),
    Sketcher.Constraint("Coincident", 2, 2, 3, 1),
    Sketcher.Constraint("Coincident", 3, 2, 0, 1),
    Sketcher.Constraint("Vertical", 0),
    Sketcher.Constraint("Horizontal", 1),
    Sketcher.Constraint("Vertical", 2),
    Sketcher.Constraint("Horizontal", 3),
    Sketcher.Constraint("DistanceX", 1, 1, 1, 2, 21.0),
    Sketcher.Constraint("DistanceY", 0, 1, 0, 2, 7.5),
    Sketcher.Constraint("DistanceX", -1, 1, 0, 2, 8.0),
    Sketcher.Constraint("DistanceY", 2, 2, -1, 1, 61.0),
])
sketch7.setExpression("Constraints[8]", "Params.sketch7_width")
sketch7.setExpression("Constraints[9]", "Params.sketch7_height")
pad5 = doc.addObject("PartDesign::Pad", "Pad004")
body2.addObject(pad5)
pad5.Profile = sketch7
pad5.setExpression("Length", "Params.pad5_length")
pad5.Reversed = True

sketch8 = doc.addObject("Sketcher::SketchObject", "Sketch007")
body2.addObject(sketch8)
sketch8.AttachmentSupport = (doc.getObject("YZ_Plane001"), [""])
sketch8.MapMode = "FlatFace"
sketch8.AttachmentOffset = App.Placement(V(0, 0, 8), App.Rotation())
sketch8.addGeometry([
    Part.LineSegment(V(8.967459, -61, 0), V(12, -59.096068, 0)),
    Part.LineSegment(V(12, -59.096068, 0), V(12, -61, 0)),
    Part.LineSegment(V(12, -61, 0), V(8.967459, -61, 0)),
    Part.LineSegment(V(12, -56.149607, 0), V(8.967459, -53.5, 0)),
    Part.LineSegment(V(8.967459, -53.5, 0), V(12, -53.5, 0)),
    Part.LineSegment(V(12, -53.5, 0), V(12, -56.149607, 0)),
], False)
sketch8.addConstraint([
    Sketcher.Constraint("Coincident", 0, 2, 1, 1),
    Sketcher.Constraint("Coincident", 1, 2, 2, 1),
    Sketcher.Constraint("Coincident", 2, 2, 0, 1),
    Sketcher.Constraint("Coincident", 3, 2, 4, 1),
    Sketcher.Constraint("Coincident", 4, 2, 5, 1),
    Sketcher.Constraint("Coincident", 5, 2, 3, 1),
    Sketcher.Constraint("Vertical", 1),
    Sketcher.Constraint("Horizontal", 2),
    Sketcher.Constraint("Horizontal", 4),
    Sketcher.Constraint("Vertical", 5),
    Sketcher.Constraint("Vertical", 2, 2, 3, 2),
    Sketcher.Constraint("Vertical", 1, 2, 4, 2),
    Sketcher.Constraint("DistanceX", -1, 1, 0, 2, 12.0),
    Sketcher.Constraint("DistanceY", 1, 2, -1, 1, 61.0),
    Sketcher.Constraint("DistanceY", 3, 2, -1, 1, 53.5),
    Sketcher.Constraint("Distance", 3, 4.026999),
    Sketcher.Constraint("DistanceX", 2, 2, 2, 1, 3.032541),
    Sketcher.Constraint("Distance", 0, 3.580679),
])
pocket3 = doc.addObject("PartDesign::Pocket", "Pocket002")
body2.addObject(pocket3)
pocket3.Profile = sketch8
pocket3.setExpression("Length", "Params.pocket3_length")
pocket3.Reversed = True

sketch9 = doc.addObject("Sketcher::SketchObject", "Sketch008")
body2.addObject(sketch9)
sketch9.AttachmentSupport = (doc.getObject("XZ_Plane001"), [""])
sketch9.MapMode = "FlatFace"
sketch9.AttachmentOffset = App.Placement(V(0, 0, -12), App.Rotation())
sketch9.addGeometry([
    Part.Circle(V(25.336098, -57.741602, 0), V(0, 0, 1), 0.8412),
    Part.Circle(V(20.336098, -57.741602, 0), V(0, 0, 1), 0.8412),
    Part.Circle(V(15.336098, -57.741602, 0), V(0, 0, 1), 0.8412),
    Part.Circle(V(10.336098, -57.741602, 0), V(0, 0, 1), 0.8412),
], False)
sketch9.addConstraint([
    Sketcher.Constraint("Equal", 0, 1),
    Sketcher.Constraint("Equal", 1, 2),
    Sketcher.Constraint("Equal", 2, 3),
    Sketcher.Constraint("Horizontal", 0, 3, 1, 3),
    Sketcher.Constraint("Horizontal", 1, 3, 2, 3),
    Sketcher.Constraint("Horizontal", 2, 3, 3, 3),
    Sketcher.Constraint("DistanceX", 1, 3, 0, 3, 5.0),
    Sketcher.Constraint("DistanceX", 2, 3, 1, 3, 5.0),
    Sketcher.Constraint("DistanceX", 3, 3, 2, 3, 5.0),
    Sketcher.Constraint("Diameter", 0, 1.682399),
    Sketcher.Constraint("DistanceX", -1, 1, 0, 3, 25.336098),
    Sketcher.Constraint("DistanceY", 0, 3, -1, 1, 57.741602),
])
pocket4 = doc.addObject("PartDesign::Pocket", "Pocket003")
body2.addObject(pocket4)
pocket4.Profile = sketch9
pocket4.setExpression("Length", "Params.pocket4_length")
pocket4.Reversed = True
body3 = doc.addObject("PartDesign::Body", "Body002")

sketch10 = doc.addObject("Sketcher::SketchObject", "Sketch009")
body3.addObject(sketch10)
sketch10.AttachmentSupport = (doc.getObject("XZ_Plane002"), [""])
sketch10.MapMode = "FlatFace"
sketch10.AttachmentOffset = App.Placement(V(0, 0, -1.5), App.Rotation())
sketch10.addGeometry([
    Part.LineSegment(V(27, -22, 0), V(27, -9, 0)),
    Part.LineSegment(V(27, -9, 0), V(37, -9, 0)),
    Part.LineSegment(V(37, -9, 0), V(37, -22, 0)),
    Part.LineSegment(V(37, -22, 0), V(27, -22, 0)),
], False)
sketch10.addConstraint([
    Sketcher.Constraint("Coincident", 0, 2, 1, 1),
    Sketcher.Constraint("Coincident", 1, 2, 2, 1),
    Sketcher.Constraint("Coincident", 2, 2, 3, 1),
    Sketcher.Constraint("Coincident", 3, 2, 0, 1),
    Sketcher.Constraint("Vertical", 0),
    Sketcher.Constraint("Horizontal", 1),
    Sketcher.Constraint("Vertical", 2),
    Sketcher.Constraint("Horizontal", 3),
    Sketcher.Constraint("DistanceX", 1, 1, 1, 2, 10.0),
    Sketcher.Constraint("DistanceY", 0, 1, 0, 2, 13.0),
    Sketcher.Constraint("DistanceX", -1, 1, 0, 2, 27.0),
    Sketcher.Constraint("DistanceY", 0, 2, -1, 1, 9.0),
])
sketch10.setExpression("Constraints[8]", "Params.sketch10_width")
sketch10.setExpression("Constraints[9]", "Params.sketch10_height")
pad6 = doc.addObject("PartDesign::Pad", "Pad005")
body3.addObject(pad6)
pad6.Profile = sketch10
pad6.setExpression("Length", "Params.pad6_length")
pad6.Reversed = True
doc.recompute()

fillet = doc.addObject("PartDesign::Fillet", "Fillet")
body3.addObject(fillet)
fillet.Base = (pad6, ["Edge1"])
fillet.UseAllEdges = True
fillet.setExpression("Radius", "Params.fillet_radius")

doc.recompute()
